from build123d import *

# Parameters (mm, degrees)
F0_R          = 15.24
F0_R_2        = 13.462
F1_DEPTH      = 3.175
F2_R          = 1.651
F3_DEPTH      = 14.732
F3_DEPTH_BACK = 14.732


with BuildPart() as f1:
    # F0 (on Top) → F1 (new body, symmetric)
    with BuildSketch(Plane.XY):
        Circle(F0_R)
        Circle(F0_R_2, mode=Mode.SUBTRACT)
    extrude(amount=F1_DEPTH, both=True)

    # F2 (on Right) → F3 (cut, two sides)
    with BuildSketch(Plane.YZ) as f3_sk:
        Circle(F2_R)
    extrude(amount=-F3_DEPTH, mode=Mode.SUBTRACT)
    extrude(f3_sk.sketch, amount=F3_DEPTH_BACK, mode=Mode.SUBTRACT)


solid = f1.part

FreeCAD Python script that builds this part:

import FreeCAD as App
import Part
import Sketcher

V = App.Vector
Q = App.Units.Quantity

doc = App.newDocument("Part")
body = doc.addObject("PartDesign::Body", "Body")

# Sketch on XY plane
sketch1 = body.newObject("Sketcher::SketchObject", "Sketch")
sketch1.AttachmentSupport = (doc.getObject("XY_Plane"), [""])
sketch1.MapMode = "FlatFace"
sketch1.addGeometry(Part.Circle(V(0, 0, 0), V(0, 0, 1), 15.24), False)
sketch1.addGeometry(Part.Circle(V(0, 0, 0), V(0, 0, 1), 13.462), False)
sketch1.addConstraint(Sketcher.Constraint("Coincident", 0, 3, -1, 1))
sketch1.addConstraint(Sketcher.Constraint("Coincident", 1, 3, -1, 1))
sketch1.addConstraint(Sketcher.Constraint("Diameter", 0, Q("1.2 in")))
sketch1.addConstraint(Sketcher.Constraint("Diameter", 1, Q("1.06 in")))
pad1 = body.newObject("PartDesign::Pad", "Pad")
pad1.Profile = sketch1
pad1.Length = Q("0.25 in")
pad1.Midplane = True

# Sketch on YZ plane
sketch2 = body.newObject("Sketcher::SketchObject", "Sketch001")
sketch2.AttachmentSupport = (doc.getObject("YZ_Plane"), [""])
sketch2.MapMode = "FlatFace"
sketch2.addGeometry(Part.Circle(V(0, 0, 0), V(0, 0, 1), 1.651), False)
sketch2.addConstraint(Sketcher.Constraint("Coincident", 0, 3, -1, 1))
sketch2.addConstraint(Sketcher.Constraint("Diameter", 0, Q("0.13 in")))
pocket1 = body.newObject("PartDesign::Pocket", "Pocket")
pocket1.Profile = sketch2
pocket1.Type = "TwoLengths"
pocket1.Length = Q("0.58 in")
pocket1.Length2 = Q("0.58 in")

doc.recompute()
